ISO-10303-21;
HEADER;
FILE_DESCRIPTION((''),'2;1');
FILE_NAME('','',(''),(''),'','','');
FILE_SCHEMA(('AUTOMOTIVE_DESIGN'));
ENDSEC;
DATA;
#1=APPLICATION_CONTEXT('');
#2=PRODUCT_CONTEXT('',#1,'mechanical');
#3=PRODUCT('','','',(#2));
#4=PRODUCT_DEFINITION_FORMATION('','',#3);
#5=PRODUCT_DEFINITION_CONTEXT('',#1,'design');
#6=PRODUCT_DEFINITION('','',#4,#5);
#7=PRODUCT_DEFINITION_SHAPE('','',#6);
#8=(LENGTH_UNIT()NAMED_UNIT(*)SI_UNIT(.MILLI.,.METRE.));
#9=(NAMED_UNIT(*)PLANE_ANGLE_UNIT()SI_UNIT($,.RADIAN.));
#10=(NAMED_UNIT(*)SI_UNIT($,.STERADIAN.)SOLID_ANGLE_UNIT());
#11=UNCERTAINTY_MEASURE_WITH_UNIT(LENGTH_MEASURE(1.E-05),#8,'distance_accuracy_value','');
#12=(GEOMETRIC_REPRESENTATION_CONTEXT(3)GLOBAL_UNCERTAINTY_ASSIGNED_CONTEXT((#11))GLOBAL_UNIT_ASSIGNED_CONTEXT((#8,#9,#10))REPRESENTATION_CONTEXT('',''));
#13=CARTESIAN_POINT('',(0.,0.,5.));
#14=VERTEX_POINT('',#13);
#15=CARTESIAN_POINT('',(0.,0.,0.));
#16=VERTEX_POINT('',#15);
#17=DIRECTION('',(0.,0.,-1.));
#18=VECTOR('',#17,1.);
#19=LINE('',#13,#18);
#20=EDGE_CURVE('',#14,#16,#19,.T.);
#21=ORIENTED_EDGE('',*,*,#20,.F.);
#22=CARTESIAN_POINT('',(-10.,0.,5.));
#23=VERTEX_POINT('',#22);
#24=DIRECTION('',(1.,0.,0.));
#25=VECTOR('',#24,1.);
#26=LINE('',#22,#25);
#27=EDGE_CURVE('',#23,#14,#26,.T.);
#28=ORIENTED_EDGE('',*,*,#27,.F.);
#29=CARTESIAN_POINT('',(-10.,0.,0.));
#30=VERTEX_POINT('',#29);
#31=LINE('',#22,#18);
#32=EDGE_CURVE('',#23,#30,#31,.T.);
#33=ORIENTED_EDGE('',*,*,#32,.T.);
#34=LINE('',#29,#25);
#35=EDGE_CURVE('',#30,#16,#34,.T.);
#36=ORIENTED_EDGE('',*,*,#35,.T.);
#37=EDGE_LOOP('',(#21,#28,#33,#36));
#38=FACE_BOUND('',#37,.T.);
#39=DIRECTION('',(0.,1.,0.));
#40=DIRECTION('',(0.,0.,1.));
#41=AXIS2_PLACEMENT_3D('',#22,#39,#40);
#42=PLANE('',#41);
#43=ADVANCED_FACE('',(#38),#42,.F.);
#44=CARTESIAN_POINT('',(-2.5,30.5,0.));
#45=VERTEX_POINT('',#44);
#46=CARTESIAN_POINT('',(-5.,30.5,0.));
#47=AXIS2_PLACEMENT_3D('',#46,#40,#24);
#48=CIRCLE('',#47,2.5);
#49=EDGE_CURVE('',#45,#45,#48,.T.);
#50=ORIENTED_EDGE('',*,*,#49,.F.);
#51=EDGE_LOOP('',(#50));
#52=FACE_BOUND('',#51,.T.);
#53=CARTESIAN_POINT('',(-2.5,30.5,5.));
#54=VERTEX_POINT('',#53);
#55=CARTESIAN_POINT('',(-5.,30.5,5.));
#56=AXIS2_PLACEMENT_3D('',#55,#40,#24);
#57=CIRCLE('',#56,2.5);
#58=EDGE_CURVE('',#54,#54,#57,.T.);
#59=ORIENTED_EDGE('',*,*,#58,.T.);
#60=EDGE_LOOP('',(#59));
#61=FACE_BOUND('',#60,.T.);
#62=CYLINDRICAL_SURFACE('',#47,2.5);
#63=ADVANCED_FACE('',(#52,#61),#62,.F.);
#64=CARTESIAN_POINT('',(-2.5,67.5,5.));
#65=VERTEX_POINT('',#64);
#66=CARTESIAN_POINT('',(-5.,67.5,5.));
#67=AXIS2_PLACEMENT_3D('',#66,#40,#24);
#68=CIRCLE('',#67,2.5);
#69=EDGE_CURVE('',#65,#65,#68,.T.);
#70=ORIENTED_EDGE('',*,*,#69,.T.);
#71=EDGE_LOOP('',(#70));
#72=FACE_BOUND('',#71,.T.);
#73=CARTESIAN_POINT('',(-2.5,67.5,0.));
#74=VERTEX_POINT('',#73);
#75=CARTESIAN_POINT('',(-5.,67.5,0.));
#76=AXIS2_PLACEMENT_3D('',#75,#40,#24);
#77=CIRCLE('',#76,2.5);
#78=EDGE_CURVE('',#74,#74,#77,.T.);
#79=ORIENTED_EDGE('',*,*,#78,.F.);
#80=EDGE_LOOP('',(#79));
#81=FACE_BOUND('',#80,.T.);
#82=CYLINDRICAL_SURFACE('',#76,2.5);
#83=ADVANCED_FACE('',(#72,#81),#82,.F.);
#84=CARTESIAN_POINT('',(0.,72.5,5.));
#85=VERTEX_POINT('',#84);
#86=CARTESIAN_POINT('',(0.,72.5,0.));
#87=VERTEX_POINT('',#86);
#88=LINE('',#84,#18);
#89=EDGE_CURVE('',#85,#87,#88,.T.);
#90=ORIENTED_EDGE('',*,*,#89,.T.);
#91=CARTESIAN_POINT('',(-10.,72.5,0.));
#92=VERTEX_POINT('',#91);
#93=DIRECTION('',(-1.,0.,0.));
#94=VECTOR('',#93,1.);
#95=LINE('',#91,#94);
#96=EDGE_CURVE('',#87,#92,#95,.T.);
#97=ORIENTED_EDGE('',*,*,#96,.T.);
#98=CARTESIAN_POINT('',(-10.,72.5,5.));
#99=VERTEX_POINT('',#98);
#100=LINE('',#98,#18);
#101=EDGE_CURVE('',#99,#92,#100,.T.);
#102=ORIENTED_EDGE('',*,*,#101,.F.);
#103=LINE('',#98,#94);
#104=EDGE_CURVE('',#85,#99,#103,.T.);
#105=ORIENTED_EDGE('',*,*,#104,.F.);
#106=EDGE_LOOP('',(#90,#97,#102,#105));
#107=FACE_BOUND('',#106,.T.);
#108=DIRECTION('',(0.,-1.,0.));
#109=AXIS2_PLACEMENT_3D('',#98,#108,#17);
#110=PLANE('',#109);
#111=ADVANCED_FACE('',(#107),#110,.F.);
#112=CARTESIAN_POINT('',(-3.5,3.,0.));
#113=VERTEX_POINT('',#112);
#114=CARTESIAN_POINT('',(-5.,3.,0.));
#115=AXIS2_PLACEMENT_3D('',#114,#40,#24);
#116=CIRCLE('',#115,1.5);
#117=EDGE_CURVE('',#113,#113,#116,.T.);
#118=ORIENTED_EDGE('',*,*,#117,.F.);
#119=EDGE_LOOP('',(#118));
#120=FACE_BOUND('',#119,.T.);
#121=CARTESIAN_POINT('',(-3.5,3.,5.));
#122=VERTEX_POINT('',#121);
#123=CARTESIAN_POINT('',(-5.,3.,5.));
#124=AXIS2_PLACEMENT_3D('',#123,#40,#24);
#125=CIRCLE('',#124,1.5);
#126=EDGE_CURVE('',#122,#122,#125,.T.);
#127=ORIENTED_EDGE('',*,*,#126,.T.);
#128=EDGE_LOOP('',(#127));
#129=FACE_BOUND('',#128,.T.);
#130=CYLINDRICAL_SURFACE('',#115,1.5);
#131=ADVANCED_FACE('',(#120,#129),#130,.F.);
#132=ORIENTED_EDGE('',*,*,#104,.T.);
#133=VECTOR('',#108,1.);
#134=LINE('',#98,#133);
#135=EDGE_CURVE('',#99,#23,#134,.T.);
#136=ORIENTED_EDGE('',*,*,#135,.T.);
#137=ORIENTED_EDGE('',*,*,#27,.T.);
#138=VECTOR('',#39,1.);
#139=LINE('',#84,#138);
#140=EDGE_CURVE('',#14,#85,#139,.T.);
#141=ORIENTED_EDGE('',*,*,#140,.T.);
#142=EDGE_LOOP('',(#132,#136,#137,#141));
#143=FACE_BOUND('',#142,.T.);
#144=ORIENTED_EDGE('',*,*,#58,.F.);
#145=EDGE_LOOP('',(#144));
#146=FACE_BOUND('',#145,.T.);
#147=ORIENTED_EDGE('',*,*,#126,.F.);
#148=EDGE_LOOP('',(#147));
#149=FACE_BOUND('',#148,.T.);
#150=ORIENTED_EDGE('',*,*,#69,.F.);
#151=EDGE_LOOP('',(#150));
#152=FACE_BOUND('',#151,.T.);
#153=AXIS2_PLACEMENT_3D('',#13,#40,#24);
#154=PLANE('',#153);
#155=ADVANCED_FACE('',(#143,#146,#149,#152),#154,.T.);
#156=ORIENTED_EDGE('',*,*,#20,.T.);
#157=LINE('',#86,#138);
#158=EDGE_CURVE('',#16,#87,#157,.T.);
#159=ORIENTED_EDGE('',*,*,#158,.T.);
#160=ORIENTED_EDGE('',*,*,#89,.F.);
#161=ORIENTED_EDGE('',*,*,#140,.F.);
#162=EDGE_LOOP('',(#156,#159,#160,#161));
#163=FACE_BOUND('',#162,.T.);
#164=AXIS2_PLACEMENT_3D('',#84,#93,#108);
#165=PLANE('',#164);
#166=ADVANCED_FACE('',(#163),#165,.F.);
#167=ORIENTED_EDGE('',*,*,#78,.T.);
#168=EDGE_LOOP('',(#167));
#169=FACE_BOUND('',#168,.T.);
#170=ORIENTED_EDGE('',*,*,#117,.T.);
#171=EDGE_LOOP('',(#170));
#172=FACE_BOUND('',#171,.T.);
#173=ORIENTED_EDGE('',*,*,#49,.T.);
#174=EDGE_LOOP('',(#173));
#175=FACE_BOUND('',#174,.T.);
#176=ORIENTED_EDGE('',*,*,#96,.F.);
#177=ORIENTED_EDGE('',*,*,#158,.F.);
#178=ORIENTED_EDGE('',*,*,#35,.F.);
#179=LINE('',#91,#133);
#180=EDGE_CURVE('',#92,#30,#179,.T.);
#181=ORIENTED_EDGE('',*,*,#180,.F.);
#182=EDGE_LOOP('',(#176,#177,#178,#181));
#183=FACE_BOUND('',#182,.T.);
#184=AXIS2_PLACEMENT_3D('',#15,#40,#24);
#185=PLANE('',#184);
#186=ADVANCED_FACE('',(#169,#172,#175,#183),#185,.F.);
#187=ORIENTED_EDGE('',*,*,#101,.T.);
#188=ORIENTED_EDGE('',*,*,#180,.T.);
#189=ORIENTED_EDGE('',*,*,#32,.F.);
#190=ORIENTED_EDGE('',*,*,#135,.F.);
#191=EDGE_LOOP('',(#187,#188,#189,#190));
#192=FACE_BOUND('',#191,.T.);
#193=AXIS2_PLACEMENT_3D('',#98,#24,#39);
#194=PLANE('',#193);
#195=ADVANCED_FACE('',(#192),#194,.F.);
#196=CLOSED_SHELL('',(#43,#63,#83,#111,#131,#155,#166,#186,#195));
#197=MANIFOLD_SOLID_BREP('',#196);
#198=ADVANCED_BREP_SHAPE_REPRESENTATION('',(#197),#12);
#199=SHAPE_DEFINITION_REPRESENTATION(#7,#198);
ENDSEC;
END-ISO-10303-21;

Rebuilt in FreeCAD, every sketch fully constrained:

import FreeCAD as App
import Part
import Sketcher
from FreeCAD import Vector
Q = App.Units.Quantity


def add_polygon(sketch, points):
    """Adds a closed chain of lines whose ends are joined by coincident constraints."""
    first, n = sketch.GeometryCount, len(points)
    for a, b in zip(points, points[1:] + points[:1]):
        sketch.addGeometry(Part.LineSegment(App.Vector(*a, 0), App.Vector(*b, 0)), False)
    for i in range(n):
        sketch.addConstraint(Sketcher.Constraint("Coincident", first + i, 2, first + (i + 1) % n, 1))

doc = App.newDocument("Part")
params = doc.addObject("Spreadsheet::Sheet", "Params")
for row, (alias, value) in enumerate([
    ("sketch1_width", "10 mm"),
    ("sketch1_height", "72.5 mm"),
    ("pad1_length", "5 mm"),
    ("sketch2_diameter", "5 mm"),
    ("sketch3_diameter", "3 mm"),
    ("sketch3_diameter2", "5 mm"),
], start=1):
    params.set(f"A{row}", alias)
    params.set(f"B{row}", "=" + value)
    params.setAlias(f"B{row}", alias)

body = doc.addObject("PartDesign::Body", "Body")

# Sketch on XY plane
sketch1 = body.newObject("Sketcher::SketchObject", "Sketch")
sketch1.AttachmentSupport = (doc.getObject("XY_Plane"), [""])
sketch1.MapMode = "FlatFace"
add_polygon(sketch1, [(-10, 72.5), (-10, 0), (0, 0), (0, 72.5)])  # lines 0-3
sketch1.addConstraint(Sketcher.Constraint("Vertical", 0))
sketch1.addConstraint(Sketcher.Constraint("Horizontal", 1))
sketch1.addConstraint(Sketcher.Constraint("Vertical", 2))
sketch1.addConstraint(Sketcher.Constraint("Horizontal", 3))
sketch1.addConstraint(Sketcher.Constraint("Coincident", 1, 2, -1, 1))
sketch1.addConstraint(Sketcher.Constraint("DistanceX", 1, 1, 1, 2, Q("10 mm")))
sketch1.addConstraint(Sketcher.Constraint("DistanceY", 0, 2, 0, 1, Q("72.5 mm")))
sketch1.setExpression("Constraints[9]", "Params.sketch1_width")
sketch1.setExpression("Constraints[10]", "Params.sketch1_height")
pad1 = body.newObject("PartDesign::Pad", "Pad")
pad1.Profile = sketch1
pad1.setExpression("Length", "Params.pad1_length")

# Sketch on XY plane
sketch2 = body.newObject("Sketcher::SketchObject", "Sketch001")
sketch2.AttachmentSupport = (doc.getObject("XY_Plane"), [""])
sketch2.MapMode = "FlatFace"
sketch2.AttachmentOffset = App.Placement(Vector(0, 0, 5), App.Rotation())
sketch2.addGeometry(Part.Circle(Vector(-5, 67.5, 0), Vector(0, 0, 1), 2.5), False)
sketch2.addConstraint(Sketcher.Constraint("Diameter", 0, Q("5 mm")))
sketch2.addConstraint(Sketcher.Constraint("DistanceX", 0, 3, -1, 1, Q("5 mm")))
sketch2.addConstraint(Sketcher.Constraint("DistanceY", -1, 1, 0, 3, Q("67.5 mm")))
sketch2.setExpression("Constraints[0]", "Params.sketch2_diameter")
pocket1 = body.newObject("PartDesign::Pocket", "Pocket")
pocket1.Profile = sketch2
pocket1.Type = "ThroughAll"

# Sketch on XY plane
sketch3 = body.newObject("Sketcher::SketchObject", "Sketch002")
sketch3.AttachmentSupport = (doc.getObject("XY_Plane"), [""])
sketch3.MapMode = "FlatFace"
sketch3.AttachmentOffset = App.Placement(Vector(0, 0, 5), App.Rotation())
sketch3.addGeometry(Part.Circle(Vector(-5, 3, 0), Vector(0, 0, 1), 1.5), False)
sketch3.addGeometry(Part.Circle(Vector(-5, 30.5, 0), Vector(0, 0, 1), 2.5), False)
sketch3.addConstraint(Sketcher.Constraint("Vertical", 0, 3, 1, 3))
sketch3.addConstraint(Sketcher.Constraint("Diameter", 0, Q("3 mm")))
sketch3.addConstraint(Sketcher.Constraint("Diameter", 1, Q("5 mm")))
sketch3.addConstraint(Sketcher.Constraint("DistanceX", 0, 3, -1, 1, Q("5 mm")))
sketch3.addConstraint(Sketcher.Constraint("DistanceY", -1, 1, 0, 3, Q("3 mm")))
sketch3.addConstraint(Sketcher.Constraint("DistanceY", -1, 1, 1, 3, Q("30.5 mm")))
sketch3.setExpression("Constraints[1]", "Params.sketch3_diameter")
sketch3.setExpression("Constraints[2]", "Params.sketch3_diameter2")
pocket2 = body.newObject("PartDesign::Pocket", "Pocket001")
pocket2.Profile = sketch3
pocket2.Type = "ThroughAll"

doc.recompute()
